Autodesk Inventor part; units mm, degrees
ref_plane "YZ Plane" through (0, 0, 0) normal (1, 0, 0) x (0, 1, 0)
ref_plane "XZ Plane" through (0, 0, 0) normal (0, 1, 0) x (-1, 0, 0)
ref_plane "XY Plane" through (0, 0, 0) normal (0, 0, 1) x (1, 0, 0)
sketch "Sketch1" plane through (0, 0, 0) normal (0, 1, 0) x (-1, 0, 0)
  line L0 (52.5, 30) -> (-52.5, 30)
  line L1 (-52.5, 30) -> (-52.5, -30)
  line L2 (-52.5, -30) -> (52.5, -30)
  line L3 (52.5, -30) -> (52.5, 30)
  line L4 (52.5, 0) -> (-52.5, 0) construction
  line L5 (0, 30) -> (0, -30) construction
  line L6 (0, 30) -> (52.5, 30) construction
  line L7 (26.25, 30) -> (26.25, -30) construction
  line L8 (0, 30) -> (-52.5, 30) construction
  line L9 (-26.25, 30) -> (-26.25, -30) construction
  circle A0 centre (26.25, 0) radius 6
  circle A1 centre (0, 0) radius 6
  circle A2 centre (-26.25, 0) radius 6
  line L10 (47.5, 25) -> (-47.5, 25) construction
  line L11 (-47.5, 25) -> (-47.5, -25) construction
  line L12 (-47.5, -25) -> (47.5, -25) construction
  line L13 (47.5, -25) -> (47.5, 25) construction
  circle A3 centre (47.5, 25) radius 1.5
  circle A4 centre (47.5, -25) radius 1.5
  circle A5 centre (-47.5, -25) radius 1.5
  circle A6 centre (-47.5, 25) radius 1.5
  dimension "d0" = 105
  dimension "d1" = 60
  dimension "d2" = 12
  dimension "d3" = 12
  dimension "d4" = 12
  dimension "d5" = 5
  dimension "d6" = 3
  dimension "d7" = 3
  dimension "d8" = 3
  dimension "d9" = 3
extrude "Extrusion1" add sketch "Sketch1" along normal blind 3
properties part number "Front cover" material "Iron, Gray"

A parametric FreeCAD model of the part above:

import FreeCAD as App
import Part
import Sketcher
from FreeCAD import Vector


def add_polygon(sketch, points):
    """Adds a closed chain of lines whose ends are joined by coincident constraints."""
    first, n = sketch.GeometryCount, len(points)
    for a, b in zip(points, points[1:] + points[:1]):
        sketch.addGeometry(Part.LineSegment(App.Vector(*a, 0), App.Vector(*b, 0)), False)
    for i in range(n):
        sketch.addConstraint(Sketcher.Constraint("Coincident", first + i, 2, first + (i + 1) % n, 1))

doc = App.newDocument("Part")
params = doc.addObject("Spreadsheet::Sheet", "Params")
for row, (alias, value) in enumerate([
    ("sketch1_diameter", "3 mm"),
    ("sketch1_diameter2", "12 mm"),
    ("sketch1_width", "105 mm"),
    ("sketch1_height", "60 mm"),
    ("pad1_length", "3 mm"),
], start=1):
    params.set(f"A{row}", alias)
    params.set(f"B{row}", "=" + value)
    params.setAlias(f"B{row}", alias)

body = doc.addObject("PartDesign::Body", "Body")

# Sketch on XZ plane
sketch1 = body.newObject("Sketcher::SketchObject", "Sketch")
sketch1.AttachmentSupport = (doc.getObject("XZ_Plane"), [""])
sketch1.MapMode = "FlatFace"
add_polygon(sketch1, [(-52.5, -30), (-52.5, 30), (52.5, 30), (52.5, -30)])  # lines 0-3
sketch1.addGeometry(Part.Circle(Vector(47.5, -25, 0), Vector(0, 0, 1), 1.5), False)  # 4
sketch1.addGeometry(Part.Circle(Vector(-47.5, -25, 0), Vector(0, 0, 1), 1.5), False)  # 5
sketch1.addGeometry(Part.Circle(Vector(26.25, 0, 0), Vector(0, 0, 1), 6), False)  # 6
sketch1.addGeometry(Part.Circle(Vector(47.5, 25, 0), Vector(0, 0, 1), 1.5), False)  # 7
sketch1.addGeometry(Part.Circle(Vector(0, 0, 0), Vector(0, 0, 1), 6), False)  # 8
sketch1.addGeometry(Part.Circle(Vector(-26.25, 0, 0), Vector(0, 0, 1), 6), False)  # 9
sketch1.addGeometry(Part.Circle(Vector(-47.5, 25, 0), Vector(0, 0, 1), 1.5), False)  # 10
sketch1.addConstraint([
    Sketcher.Constraint("Vertical", 0),
    Sketcher.Constraint("Horizontal", 1),
    Sketcher.Constraint("Vertical", 2),
    Sketcher.Constraint("Horizontal", 3),
    Sketcher.Constraint("Coincident", 8, 3, -1, 1),
    Sketcher.Constraint("Equal", 4, 5),
    Sketcher.Constraint("Equal", 5, 7),
    Sketcher.Constraint("Equal", 6, 8),
    Sketcher.Constraint("Equal", 8, 9),
    Sketcher.Constraint("Equal", 7, 10),
    Sketcher.Constraint("Symmetric", 5, 3, 7, 3, -1, 1),
    Sketcher.Constraint("Symmetric", 6, 3, 9, 3, -1, 1),
    Sketcher.Constraint("Symmetric", 4, 3, 10, 3, -1, 1),
    Sketcher.Constraint("Symmetric", 0, 2, 2, 2, -1, 1),
    Sketcher.Constraint("Symmetric", 4, 3, 5, 3, -2),
    Sketcher.Constraint("PointOnObject", 6, 3, -1),
    Sketcher.Constraint("Diameter", 4, 3.0),
    Sketcher.Constraint("Diameter", 6, 12.0),
    Sketcher.Constraint("DistanceX", 1, 1, 1, 2, 105.0),
    Sketcher.Constraint("DistanceY", 0, 1, 0, 2, 60.0),
    Sketcher.Constraint("DistanceX", 0, 2, 10, 3, 5.0),
    Sketcher.Constraint("DistanceY", 10, 3, 0, 2, 5.0),
    Sketcher.Constraint("DistanceX", 9, 3, 6, 3, 52.5),
])
sketch1.setExpression("Constraints[20]", "Params.sketch1_diameter")
sketch1.setExpression("Constraints[21]", "Params.sketch1_diameter2")
sketch1.setExpression("Constraints[22]", "Params.sketch1_width")
sketch1.setExpression("Constraints[23]", "Params.sketch1_height")
pad1 = body.newObject("PartDesign::Pad", "Pad")
pad1.Profile = sketch1
pad1.setExpression("Length", "Params.pad1_length")
pad1.Reversed = True

doc.recompute()
